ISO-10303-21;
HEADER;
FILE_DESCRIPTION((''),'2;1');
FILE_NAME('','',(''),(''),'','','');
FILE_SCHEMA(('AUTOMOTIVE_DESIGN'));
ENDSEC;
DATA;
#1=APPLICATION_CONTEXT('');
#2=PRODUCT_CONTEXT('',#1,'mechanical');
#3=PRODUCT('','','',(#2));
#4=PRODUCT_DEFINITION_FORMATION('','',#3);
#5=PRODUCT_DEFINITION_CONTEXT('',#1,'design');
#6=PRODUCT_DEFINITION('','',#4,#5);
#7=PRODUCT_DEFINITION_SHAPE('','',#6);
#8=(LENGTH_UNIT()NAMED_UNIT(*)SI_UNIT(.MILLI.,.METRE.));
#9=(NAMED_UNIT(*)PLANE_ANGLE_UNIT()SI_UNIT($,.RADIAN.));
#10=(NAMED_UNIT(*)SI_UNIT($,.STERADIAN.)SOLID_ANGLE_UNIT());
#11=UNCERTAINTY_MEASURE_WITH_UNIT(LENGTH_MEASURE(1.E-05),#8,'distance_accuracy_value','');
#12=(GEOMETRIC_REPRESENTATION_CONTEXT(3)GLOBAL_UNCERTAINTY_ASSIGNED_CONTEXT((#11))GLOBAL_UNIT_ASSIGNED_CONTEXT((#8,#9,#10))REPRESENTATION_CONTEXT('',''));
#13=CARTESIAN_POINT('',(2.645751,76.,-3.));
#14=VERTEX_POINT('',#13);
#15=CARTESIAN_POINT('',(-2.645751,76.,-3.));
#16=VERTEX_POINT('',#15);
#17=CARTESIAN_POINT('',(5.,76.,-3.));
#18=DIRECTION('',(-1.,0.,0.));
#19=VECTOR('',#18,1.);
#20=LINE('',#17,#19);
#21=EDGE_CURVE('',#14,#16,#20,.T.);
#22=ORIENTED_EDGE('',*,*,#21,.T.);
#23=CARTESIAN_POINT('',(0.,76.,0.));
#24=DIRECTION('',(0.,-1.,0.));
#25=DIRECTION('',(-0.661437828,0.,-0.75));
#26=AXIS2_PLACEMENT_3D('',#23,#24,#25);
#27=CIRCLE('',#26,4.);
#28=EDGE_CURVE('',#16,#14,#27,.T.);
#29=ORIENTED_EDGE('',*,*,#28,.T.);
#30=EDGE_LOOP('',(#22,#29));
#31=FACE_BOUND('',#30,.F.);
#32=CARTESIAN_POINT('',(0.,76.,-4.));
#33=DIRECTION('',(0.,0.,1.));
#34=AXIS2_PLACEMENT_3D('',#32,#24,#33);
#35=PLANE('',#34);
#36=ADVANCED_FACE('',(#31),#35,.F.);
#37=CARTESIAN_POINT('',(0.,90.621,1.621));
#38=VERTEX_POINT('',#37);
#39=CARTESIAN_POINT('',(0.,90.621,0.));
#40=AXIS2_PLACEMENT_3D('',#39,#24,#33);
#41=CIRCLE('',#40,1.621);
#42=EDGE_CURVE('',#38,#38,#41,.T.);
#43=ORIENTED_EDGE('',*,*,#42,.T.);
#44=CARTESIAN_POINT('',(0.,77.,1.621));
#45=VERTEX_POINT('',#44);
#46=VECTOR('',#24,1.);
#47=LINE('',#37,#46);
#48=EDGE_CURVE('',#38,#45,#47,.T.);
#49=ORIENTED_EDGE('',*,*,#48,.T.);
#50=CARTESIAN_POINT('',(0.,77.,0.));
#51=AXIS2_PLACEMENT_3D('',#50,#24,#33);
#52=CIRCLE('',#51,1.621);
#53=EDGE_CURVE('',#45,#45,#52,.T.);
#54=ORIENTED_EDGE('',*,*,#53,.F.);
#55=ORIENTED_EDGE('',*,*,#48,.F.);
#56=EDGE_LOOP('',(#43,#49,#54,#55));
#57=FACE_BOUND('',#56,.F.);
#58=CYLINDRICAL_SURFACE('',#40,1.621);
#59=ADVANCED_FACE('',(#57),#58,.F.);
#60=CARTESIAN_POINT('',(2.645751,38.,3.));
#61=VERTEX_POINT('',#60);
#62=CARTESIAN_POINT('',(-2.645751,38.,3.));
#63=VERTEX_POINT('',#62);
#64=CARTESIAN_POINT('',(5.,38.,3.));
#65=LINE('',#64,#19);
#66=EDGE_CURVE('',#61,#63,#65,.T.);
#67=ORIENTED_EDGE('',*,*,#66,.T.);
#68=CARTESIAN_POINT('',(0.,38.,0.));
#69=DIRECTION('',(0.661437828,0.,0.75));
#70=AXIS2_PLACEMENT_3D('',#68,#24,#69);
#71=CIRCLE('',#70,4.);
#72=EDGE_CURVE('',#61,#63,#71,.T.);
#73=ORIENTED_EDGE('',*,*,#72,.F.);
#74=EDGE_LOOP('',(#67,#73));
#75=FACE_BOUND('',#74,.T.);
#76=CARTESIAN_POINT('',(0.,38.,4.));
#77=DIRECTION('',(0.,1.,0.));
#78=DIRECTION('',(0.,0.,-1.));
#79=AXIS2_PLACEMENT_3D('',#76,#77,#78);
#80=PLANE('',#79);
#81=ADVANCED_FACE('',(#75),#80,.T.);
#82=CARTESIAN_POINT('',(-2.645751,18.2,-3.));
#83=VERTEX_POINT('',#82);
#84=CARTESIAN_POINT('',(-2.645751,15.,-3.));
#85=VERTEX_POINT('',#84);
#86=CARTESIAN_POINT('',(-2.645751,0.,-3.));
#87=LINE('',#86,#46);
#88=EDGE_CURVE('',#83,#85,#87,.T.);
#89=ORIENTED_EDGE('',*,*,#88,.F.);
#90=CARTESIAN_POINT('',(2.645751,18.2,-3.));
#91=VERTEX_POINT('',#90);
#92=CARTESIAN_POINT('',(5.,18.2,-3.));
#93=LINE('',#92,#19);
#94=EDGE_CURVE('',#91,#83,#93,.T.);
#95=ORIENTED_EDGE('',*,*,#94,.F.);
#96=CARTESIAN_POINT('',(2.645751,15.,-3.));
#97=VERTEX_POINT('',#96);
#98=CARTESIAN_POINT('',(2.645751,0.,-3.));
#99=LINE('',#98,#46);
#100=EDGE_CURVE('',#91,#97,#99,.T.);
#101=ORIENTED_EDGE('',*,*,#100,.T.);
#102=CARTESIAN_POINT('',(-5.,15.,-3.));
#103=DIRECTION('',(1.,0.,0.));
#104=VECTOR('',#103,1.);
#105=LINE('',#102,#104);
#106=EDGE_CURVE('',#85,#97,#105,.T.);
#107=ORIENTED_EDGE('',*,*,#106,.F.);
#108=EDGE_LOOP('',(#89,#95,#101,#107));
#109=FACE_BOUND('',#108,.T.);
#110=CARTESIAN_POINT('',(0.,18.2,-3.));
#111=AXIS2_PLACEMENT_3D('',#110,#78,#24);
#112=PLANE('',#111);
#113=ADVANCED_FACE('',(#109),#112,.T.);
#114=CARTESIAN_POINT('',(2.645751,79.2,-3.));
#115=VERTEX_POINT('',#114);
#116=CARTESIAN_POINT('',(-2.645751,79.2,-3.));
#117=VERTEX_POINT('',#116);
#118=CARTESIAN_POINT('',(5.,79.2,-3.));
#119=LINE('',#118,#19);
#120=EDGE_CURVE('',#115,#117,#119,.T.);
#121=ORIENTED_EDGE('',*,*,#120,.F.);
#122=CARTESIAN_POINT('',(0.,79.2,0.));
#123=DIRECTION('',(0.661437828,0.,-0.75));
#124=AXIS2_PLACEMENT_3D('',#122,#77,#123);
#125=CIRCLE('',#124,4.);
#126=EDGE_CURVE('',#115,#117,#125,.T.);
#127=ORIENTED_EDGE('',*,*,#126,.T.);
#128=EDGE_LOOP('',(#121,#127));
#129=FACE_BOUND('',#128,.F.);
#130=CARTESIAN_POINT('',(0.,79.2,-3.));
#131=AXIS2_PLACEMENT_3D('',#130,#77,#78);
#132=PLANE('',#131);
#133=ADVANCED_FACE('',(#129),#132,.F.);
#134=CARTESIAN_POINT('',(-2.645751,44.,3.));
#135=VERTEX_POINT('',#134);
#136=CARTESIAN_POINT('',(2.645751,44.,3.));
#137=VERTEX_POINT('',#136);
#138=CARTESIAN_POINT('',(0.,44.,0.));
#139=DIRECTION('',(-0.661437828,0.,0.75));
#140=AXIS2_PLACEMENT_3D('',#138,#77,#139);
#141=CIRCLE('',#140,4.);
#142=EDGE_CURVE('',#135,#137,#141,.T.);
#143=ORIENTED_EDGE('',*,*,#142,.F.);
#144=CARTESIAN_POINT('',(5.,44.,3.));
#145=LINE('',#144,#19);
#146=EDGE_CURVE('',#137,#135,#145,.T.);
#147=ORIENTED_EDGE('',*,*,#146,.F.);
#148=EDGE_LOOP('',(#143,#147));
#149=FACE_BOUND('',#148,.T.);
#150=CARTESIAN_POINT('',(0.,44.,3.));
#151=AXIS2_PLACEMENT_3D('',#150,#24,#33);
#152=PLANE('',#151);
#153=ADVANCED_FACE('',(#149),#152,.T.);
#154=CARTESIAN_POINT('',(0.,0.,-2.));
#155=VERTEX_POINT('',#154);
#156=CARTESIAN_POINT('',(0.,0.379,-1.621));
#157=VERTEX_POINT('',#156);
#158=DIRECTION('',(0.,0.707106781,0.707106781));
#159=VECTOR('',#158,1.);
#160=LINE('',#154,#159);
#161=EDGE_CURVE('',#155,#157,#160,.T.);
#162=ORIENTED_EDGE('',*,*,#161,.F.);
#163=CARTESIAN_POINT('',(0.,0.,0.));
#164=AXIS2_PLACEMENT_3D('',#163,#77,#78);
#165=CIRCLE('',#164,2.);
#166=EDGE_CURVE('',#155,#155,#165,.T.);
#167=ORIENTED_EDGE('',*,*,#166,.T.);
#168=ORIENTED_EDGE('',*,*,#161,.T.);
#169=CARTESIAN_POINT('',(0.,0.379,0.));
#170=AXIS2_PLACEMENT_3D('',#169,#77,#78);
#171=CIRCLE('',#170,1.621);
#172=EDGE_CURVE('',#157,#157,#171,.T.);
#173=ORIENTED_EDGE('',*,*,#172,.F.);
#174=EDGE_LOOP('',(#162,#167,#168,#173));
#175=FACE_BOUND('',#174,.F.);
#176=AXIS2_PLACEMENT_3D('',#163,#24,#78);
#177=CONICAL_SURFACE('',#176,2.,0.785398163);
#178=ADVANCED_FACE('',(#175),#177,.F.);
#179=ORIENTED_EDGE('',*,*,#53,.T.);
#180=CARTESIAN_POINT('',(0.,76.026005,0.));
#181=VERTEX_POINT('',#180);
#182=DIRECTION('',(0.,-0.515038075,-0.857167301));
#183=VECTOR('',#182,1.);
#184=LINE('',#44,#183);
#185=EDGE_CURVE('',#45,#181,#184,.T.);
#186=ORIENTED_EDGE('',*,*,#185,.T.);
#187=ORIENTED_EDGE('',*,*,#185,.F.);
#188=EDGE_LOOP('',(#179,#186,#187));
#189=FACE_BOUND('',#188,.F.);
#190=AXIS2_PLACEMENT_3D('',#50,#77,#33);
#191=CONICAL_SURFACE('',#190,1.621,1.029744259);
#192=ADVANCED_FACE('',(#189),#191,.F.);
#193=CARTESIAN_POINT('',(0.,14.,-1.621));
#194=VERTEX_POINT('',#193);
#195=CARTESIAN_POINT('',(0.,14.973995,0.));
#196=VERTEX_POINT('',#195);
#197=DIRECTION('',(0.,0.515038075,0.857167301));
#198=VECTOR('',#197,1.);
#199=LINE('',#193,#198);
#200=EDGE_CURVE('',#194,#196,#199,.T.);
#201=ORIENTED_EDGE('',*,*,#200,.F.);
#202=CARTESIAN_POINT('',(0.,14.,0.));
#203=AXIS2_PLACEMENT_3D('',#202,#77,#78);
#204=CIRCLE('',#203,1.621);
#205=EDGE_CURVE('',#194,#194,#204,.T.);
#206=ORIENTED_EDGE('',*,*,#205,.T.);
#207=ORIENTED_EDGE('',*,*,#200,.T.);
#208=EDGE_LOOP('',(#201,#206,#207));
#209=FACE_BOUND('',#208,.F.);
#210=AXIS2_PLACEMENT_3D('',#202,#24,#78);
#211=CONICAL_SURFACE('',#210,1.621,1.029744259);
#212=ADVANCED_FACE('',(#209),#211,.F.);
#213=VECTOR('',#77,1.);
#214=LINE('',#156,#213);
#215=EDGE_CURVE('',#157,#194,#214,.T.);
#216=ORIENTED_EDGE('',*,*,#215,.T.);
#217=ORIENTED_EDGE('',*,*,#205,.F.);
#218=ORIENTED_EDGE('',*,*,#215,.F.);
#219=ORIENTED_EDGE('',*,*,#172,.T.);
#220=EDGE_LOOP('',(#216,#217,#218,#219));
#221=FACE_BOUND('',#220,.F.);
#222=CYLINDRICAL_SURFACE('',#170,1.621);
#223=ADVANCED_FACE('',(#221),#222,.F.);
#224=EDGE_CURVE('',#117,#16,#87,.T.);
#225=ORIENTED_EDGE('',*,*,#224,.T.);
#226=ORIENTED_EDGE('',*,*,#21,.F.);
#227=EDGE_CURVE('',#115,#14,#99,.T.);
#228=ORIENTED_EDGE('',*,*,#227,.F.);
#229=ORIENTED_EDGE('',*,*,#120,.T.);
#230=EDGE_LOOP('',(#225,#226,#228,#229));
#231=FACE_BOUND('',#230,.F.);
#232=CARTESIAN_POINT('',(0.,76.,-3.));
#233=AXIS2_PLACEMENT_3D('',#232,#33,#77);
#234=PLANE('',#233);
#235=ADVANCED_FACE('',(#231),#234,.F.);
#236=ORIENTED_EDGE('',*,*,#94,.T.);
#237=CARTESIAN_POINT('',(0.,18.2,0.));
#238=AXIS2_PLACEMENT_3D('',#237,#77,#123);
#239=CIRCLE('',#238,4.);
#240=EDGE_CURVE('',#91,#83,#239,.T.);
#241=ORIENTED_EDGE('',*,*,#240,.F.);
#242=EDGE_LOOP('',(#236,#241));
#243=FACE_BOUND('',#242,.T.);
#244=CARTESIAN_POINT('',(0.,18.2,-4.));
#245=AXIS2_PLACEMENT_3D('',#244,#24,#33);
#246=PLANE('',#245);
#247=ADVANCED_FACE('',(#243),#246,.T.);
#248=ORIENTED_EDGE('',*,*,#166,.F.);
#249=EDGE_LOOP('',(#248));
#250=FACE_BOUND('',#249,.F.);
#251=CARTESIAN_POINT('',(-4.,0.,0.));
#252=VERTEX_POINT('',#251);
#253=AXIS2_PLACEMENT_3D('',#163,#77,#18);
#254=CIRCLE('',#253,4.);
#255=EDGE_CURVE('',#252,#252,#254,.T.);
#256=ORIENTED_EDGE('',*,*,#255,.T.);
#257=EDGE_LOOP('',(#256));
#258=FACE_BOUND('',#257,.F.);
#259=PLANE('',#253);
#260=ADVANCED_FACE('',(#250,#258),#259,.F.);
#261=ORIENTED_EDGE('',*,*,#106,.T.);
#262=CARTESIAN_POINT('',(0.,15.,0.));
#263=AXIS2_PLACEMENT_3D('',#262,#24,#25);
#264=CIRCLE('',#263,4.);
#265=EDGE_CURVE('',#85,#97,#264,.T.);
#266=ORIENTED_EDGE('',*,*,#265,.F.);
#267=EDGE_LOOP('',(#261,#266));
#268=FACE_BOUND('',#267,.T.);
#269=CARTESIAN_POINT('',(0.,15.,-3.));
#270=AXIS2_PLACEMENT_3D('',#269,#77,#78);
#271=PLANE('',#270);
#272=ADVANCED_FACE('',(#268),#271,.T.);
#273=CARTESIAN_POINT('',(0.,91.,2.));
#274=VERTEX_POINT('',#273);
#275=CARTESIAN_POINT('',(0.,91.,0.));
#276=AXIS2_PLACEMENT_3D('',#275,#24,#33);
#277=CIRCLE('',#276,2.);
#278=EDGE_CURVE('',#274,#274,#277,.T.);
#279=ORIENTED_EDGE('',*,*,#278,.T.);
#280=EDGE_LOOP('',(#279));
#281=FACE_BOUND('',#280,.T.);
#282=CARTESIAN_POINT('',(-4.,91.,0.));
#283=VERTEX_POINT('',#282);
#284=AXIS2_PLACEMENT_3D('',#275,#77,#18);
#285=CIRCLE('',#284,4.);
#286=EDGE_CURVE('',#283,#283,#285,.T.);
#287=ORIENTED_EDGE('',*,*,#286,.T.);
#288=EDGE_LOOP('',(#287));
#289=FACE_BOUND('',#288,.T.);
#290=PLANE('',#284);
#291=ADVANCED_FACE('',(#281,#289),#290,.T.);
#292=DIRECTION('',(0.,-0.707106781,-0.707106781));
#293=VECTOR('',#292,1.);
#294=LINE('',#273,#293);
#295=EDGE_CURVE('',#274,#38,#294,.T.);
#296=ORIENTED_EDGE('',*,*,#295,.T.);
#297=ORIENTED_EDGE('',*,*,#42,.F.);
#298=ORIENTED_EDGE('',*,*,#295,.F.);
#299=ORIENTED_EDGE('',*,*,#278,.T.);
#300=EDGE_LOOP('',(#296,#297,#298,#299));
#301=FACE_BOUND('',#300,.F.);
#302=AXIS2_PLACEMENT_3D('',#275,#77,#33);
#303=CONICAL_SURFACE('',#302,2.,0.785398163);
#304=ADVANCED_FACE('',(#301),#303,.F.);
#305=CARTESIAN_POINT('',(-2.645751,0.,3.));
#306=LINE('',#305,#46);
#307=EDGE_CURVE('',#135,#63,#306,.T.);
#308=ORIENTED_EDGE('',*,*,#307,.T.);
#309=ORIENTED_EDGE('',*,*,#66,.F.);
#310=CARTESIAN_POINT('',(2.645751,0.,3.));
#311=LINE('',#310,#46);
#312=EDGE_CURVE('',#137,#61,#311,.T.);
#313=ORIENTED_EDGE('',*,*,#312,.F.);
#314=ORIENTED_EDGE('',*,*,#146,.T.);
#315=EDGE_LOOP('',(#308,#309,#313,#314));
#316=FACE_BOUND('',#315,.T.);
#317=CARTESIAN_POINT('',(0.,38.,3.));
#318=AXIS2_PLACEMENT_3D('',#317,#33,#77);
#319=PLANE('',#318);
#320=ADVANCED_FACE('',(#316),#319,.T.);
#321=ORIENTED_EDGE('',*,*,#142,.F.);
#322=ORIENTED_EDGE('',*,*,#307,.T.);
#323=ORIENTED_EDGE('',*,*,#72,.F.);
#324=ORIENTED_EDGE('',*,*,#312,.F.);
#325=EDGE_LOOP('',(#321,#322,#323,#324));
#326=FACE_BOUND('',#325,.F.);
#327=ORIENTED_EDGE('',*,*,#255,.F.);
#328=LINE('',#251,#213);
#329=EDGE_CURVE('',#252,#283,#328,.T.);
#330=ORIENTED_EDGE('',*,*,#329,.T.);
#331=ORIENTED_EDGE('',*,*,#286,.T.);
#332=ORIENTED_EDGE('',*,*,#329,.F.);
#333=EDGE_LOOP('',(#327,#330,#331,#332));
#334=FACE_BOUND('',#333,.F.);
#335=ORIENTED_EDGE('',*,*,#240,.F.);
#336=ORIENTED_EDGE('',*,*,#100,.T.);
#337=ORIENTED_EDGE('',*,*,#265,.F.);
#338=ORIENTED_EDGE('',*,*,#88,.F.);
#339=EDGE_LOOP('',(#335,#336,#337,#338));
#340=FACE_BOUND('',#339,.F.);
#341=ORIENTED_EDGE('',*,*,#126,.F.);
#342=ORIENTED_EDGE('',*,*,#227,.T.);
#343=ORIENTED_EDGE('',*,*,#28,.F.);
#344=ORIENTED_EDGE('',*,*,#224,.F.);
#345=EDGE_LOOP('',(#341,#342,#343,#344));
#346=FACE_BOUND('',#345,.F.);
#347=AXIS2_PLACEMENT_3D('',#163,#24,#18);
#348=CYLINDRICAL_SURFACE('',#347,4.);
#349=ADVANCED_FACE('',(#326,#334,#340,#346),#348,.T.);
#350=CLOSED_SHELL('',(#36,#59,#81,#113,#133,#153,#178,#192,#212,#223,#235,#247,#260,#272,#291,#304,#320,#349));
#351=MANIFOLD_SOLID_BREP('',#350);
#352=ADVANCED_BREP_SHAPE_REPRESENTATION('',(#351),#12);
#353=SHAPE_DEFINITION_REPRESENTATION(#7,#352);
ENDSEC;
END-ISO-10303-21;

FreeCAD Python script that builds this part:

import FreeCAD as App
import Part
import Sketcher

V = App.Vector


def add_polygon(sketch, points):
    """Adds a closed chain of lines whose ends are joined by coincident constraints."""
    first, n = sketch.GeometryCount, len(points)
    for a, b in zip(points, points[1:] + points[:1]):
        sketch.addGeometry(Part.LineSegment(App.Vector(*a, 0), App.Vector(*b, 0)), False)
    for i in range(n):
        sketch.addConstraint(Sketcher.Constraint("Coincident", first + i, 2, first + (i + 1) % n, 1))

doc = App.newDocument("Part")
body = doc.addObject("PartDesign::Body", "Body")

sketch1 = body.newObject("Sketcher::SketchObject", "Sketch")
sketch1.AttachmentSupport = (doc.getObject("XZ_Plane"), [""])
sketch1.MapMode = "FlatFace"
sketch1.addGeometry(Part.Circle(V(0, 0, 0), V(0, 0, 1), 4), False)
sketch1.addConstraint(Sketcher.Constraint("Coincident", 0, 3, -1, 1))
sketch1.addConstraint(Sketcher.Constraint("Diameter", 0, 8.0))
pad1 = body.newObject("PartDesign::Pad", "Pad")
pad1.Profile = sketch1
pad1.Length = 91
pad1.Reversed = True

sketch2 = body.newObject("Sketcher::SketchObject", "Sketch001")
sketch2.AttachmentSupport = (doc.getObject("XZ_Plane"), [""])
sketch2.MapMode = "FlatFace"
sketch2.AttachmentOffset = App.Placement(V(0, 0, -91), App.Rotation())
sketch2.addGeometry(Part.Circle(V(0, 0, 0), V(0, 0, 1), 1.6), False)
sketch2.addConstraint(Sketcher.Constraint("Coincident", 0, 3, -1, 1))
sketch2.addConstraint(Sketcher.Constraint("Diameter", 0, 3.242))
doc.recompute()
hole = body.newObject("PartDesign::Hole", "Hole")
hole.Profile = sketch2
hole.ThreadType = "None"
hole.Diameter = 3.242
hole.DepthType = "Dimension"
hole.Depth = 14
hole.DrillPoint = "Angled"
hole.DrillPointAngle = 118
hole.HoleCutType = "Countersink"
hole.HoleCutDiameter = 4
hole.HoleCutCountersinkAngle = 90
hole.Reversed = True

sketch3 = body.newObject("Sketcher::SketchObject", "Sketch002")
sketch3.AttachmentSupport = (doc.getObject("XZ_Plane"), [""])
sketch3.MapMode = "FlatFace"
sketch3.addGeometry(Part.Circle(V(0, 0, 0), V(0, 0, 1), 1.6), False)
sketch3.addConstraint(Sketcher.Constraint("Coincident", 0, 3, -1, 1))
sketch3.addConstraint(Sketcher.Constraint("Diameter", 0, 3.242))
doc.recompute()
hole2 = body.newObject("PartDesign::Hole", "Hole001")
hole2.Profile = sketch3
hole2.ThreadType = "None"
hole2.Diameter = 3.242
hole2.DepthType = "Dimension"
hole2.Depth = 14
hole2.DrillPoint = "Angled"
hole2.DrillPointAngle = 118
hole2.HoleCutType = "Countersink"
hole2.HoleCutDiameter = 4
hole2.HoleCutCountersinkAngle = 90

sketch4 = body.newObject("Sketcher::SketchObject", "Sketch003")
sketch4.AttachmentSupport = (doc.getObject("YZ_Plane"), [""])
sketch4.MapMode = "FlatFace"
add_polygon(sketch4, [(76, -3), (76, -4), (79.2, -4), (79.2, -3)])
add_polygon(sketch4, [(18.2, -3), (15, -3), (15, -4), (18.2, -4)])
add_polygon(sketch4, [(44, 3), (44, 4), (38, 4), (38, 3)])
sketch4.addConstraint(Sketcher.Constraint("Vertical", 0))
sketch4.addConstraint(Sketcher.Constraint("Horizontal", 1))
sketch4.addConstraint(Sketcher.Constraint("Vertical", 2))
sketch4.addConstraint(Sketcher.Constraint("Horizontal", 3))
sketch4.addConstraint(Sketcher.Constraint("Horizontal", 4))
sketch4.addConstraint(Sketcher.Constraint("Vertical", 5))
sketch4.addConstraint(Sketcher.Constraint("Horizontal", 6))
sketch4.addConstraint(Sketcher.Constraint("Vertical", 7))
sketch4.addConstraint(Sketcher.Constraint("Vertical", 8))
sketch4.addConstraint(Sketcher.Constraint("Horizontal", 9))
sketch4.addConstraint(Sketcher.Constraint("Vertical", 10))
sketch4.addConstraint(Sketcher.Constraint("Horizontal", 11))
sketch4.addConstraint(Sketcher.Constraint("Horizontal", 3, 2, 4, 2))
sketch4.addConstraint(Sketcher.Constraint("Horizontal", 1, 2, 5, 2))
sketch4.addConstraint(Sketcher.Constraint("Equal", 3, 4))
sketch4.addConstraint(Sketcher.Constraint("Equal", 7, 8))
sketch4.addConstraint(Sketcher.Constraint("DistanceX", 9, 2, 9, 1, 6.0))
sketch4.addConstraint(Sketcher.Constraint("DistanceY", 0, 2, 0, 1, 1.0))
sketch4.addConstraint(Sketcher.Constraint("DistanceX", 1, 1, 1, 2, 3.2))
sketch4.addConstraint(Sketcher.Constraint("DistanceY", 7, 2, 10, 2, 6.0))
sketch4.addConstraint(Sketcher.Constraint("DistanceX", -1, 1, 0, 2, 76.0))
sketch4.addConstraint(Sketcher.Constraint("DistanceY", 0, 2, -1, 1, 4.0))
sketch4.addConstraint(Sketcher.Constraint("DistanceX", -1, 1, 4, 2, 15.0))
sketch4.addConstraint(Sketcher.Constraint("DistanceX", -1, 1, 8, 2, 44.0))
pocket1 = body.newObject("PartDesign::Pocket", "Pocket")
pocket1.Profile = sketch4
pocket1.Type = "ThroughAll"
pocket1.Midplane = True

doc.recompute()
